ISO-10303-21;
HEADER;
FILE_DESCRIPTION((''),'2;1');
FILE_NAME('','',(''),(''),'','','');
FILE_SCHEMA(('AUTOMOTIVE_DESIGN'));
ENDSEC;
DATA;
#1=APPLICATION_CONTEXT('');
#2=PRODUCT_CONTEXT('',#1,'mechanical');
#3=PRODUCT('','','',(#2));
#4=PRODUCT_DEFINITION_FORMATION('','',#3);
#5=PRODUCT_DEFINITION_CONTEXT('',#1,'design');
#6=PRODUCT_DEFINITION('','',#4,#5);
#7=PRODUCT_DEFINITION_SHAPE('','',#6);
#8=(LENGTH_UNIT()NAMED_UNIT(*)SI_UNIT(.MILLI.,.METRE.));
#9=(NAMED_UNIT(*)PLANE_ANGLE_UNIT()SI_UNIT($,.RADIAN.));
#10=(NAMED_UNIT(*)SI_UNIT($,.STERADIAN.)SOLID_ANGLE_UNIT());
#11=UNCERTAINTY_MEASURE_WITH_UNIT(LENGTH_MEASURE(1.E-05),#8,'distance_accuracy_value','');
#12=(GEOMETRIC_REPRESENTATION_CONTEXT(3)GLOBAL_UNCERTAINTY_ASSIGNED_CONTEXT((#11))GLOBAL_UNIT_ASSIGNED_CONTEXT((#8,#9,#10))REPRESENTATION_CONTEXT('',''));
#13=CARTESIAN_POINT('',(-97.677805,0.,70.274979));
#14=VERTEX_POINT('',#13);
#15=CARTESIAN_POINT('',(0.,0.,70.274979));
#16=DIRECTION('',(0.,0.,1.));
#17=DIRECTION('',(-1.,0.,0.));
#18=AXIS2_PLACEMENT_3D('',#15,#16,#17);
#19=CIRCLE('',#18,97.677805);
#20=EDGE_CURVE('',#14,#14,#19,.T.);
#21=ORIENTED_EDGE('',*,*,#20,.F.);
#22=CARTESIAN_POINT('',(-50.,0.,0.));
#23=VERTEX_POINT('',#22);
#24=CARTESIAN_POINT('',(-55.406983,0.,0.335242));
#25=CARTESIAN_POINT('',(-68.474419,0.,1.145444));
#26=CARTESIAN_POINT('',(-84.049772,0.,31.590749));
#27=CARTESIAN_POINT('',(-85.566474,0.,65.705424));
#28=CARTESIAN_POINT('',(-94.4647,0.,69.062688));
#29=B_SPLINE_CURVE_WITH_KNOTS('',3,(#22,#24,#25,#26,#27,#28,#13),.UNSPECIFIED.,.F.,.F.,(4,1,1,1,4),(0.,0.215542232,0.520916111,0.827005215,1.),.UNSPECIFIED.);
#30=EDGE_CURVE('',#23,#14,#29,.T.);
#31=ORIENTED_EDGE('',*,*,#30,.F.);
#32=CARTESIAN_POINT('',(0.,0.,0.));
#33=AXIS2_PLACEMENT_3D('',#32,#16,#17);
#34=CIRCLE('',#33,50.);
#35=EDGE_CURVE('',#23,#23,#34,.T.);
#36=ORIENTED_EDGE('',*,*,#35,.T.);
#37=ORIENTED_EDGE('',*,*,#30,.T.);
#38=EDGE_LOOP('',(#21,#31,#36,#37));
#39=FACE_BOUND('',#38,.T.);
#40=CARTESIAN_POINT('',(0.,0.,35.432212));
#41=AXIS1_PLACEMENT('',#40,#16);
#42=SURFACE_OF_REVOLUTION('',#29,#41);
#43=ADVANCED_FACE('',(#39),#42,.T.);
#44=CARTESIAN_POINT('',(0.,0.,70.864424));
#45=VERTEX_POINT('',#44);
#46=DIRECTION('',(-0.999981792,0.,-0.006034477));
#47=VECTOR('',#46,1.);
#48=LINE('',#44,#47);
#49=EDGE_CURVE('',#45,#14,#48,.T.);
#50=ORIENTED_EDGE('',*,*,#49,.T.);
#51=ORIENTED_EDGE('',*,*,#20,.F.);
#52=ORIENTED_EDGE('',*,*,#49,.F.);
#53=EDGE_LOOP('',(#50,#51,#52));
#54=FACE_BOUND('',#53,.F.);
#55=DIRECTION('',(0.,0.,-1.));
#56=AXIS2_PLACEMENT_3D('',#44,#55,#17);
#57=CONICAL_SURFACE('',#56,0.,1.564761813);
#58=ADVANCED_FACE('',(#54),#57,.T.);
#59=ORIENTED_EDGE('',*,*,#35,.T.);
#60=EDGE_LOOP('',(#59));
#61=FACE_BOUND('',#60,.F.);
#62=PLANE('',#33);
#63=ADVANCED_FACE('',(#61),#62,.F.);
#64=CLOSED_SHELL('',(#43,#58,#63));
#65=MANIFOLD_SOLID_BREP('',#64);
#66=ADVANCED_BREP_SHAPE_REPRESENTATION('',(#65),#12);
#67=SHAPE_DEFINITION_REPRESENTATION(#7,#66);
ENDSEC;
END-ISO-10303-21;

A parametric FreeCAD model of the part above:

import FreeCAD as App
import Part
import Sketcher

doc = App.newDocument("Part")
body = doc.addObject("PartDesign::Body", "Body")

# Sketch on XZ plane
sketch1 = doc.addObject("Sketcher::SketchObject", "Sketch")
body.addObject(sketch1)
sketch1.AttachmentSupport = (doc.XZ_Plane, [""])
sketch1.MapMode = "FlatFace"
sketch1.addGeometry([
    Part.LineSegment(App.Vector(-50, 0, 0), App.Vector(0, 0, 0)),
    Part.LineSegment(App.Vector(0, 0, 0), App.Vector(0, 70.864424, 0)),
    Part.LineSegment(App.Vector(0, 70.864424, 0), App.Vector(-97.677805, 70.274979, 0)),
    Part.BSplineCurve([App.Vector(-50, 0, 0), App.Vector(-55.406983, 0.335242, 0), App.Vector(-68.474419, 1.145444, 0), App.Vector(-84.049772, 31.590749, 0), App.Vector(-85.566474, 65.705424, 0), App.Vector(-94.4647, 69.062688, 0), App.Vector(-97.677805, 70.274979, 0)], [4, 1, 1, 1, 4], [0, 0.215542232, 0.520916111, 0.827005215, 1], False, 3, [1, 1, 1, 1, 1, 1, 1], False),
], False)
sketch1.addConstraint([
    Sketcher.Constraint("Block", 3),
    Sketcher.Constraint("Coincident", 0, 2, 1, 1),
    Sketcher.Constraint("Coincident", 1, 2, 2, 1),
    Sketcher.Constraint("Coincident", 2, 2, 3, 2),
    Sketcher.Constraint("Coincident", 3, 1, 0, 1),
    Sketcher.Constraint("Horizontal", 0),
    Sketcher.Constraint("Vertical", 1),
    Sketcher.Constraint("PointOnObject", 1, 2, -2),
    Sketcher.Constraint("DistanceY", 1, 1, 1, 2, 70.864424),
])
revolution = doc.addObject("PartDesign::Revolution", "Revolution")
body.addObject(revolution)
revolution.Profile = sketch1
revolution.ReferenceAxis = (sketch1, ["V_Axis"])
revolution.Angle = 360

doc.recompute()
